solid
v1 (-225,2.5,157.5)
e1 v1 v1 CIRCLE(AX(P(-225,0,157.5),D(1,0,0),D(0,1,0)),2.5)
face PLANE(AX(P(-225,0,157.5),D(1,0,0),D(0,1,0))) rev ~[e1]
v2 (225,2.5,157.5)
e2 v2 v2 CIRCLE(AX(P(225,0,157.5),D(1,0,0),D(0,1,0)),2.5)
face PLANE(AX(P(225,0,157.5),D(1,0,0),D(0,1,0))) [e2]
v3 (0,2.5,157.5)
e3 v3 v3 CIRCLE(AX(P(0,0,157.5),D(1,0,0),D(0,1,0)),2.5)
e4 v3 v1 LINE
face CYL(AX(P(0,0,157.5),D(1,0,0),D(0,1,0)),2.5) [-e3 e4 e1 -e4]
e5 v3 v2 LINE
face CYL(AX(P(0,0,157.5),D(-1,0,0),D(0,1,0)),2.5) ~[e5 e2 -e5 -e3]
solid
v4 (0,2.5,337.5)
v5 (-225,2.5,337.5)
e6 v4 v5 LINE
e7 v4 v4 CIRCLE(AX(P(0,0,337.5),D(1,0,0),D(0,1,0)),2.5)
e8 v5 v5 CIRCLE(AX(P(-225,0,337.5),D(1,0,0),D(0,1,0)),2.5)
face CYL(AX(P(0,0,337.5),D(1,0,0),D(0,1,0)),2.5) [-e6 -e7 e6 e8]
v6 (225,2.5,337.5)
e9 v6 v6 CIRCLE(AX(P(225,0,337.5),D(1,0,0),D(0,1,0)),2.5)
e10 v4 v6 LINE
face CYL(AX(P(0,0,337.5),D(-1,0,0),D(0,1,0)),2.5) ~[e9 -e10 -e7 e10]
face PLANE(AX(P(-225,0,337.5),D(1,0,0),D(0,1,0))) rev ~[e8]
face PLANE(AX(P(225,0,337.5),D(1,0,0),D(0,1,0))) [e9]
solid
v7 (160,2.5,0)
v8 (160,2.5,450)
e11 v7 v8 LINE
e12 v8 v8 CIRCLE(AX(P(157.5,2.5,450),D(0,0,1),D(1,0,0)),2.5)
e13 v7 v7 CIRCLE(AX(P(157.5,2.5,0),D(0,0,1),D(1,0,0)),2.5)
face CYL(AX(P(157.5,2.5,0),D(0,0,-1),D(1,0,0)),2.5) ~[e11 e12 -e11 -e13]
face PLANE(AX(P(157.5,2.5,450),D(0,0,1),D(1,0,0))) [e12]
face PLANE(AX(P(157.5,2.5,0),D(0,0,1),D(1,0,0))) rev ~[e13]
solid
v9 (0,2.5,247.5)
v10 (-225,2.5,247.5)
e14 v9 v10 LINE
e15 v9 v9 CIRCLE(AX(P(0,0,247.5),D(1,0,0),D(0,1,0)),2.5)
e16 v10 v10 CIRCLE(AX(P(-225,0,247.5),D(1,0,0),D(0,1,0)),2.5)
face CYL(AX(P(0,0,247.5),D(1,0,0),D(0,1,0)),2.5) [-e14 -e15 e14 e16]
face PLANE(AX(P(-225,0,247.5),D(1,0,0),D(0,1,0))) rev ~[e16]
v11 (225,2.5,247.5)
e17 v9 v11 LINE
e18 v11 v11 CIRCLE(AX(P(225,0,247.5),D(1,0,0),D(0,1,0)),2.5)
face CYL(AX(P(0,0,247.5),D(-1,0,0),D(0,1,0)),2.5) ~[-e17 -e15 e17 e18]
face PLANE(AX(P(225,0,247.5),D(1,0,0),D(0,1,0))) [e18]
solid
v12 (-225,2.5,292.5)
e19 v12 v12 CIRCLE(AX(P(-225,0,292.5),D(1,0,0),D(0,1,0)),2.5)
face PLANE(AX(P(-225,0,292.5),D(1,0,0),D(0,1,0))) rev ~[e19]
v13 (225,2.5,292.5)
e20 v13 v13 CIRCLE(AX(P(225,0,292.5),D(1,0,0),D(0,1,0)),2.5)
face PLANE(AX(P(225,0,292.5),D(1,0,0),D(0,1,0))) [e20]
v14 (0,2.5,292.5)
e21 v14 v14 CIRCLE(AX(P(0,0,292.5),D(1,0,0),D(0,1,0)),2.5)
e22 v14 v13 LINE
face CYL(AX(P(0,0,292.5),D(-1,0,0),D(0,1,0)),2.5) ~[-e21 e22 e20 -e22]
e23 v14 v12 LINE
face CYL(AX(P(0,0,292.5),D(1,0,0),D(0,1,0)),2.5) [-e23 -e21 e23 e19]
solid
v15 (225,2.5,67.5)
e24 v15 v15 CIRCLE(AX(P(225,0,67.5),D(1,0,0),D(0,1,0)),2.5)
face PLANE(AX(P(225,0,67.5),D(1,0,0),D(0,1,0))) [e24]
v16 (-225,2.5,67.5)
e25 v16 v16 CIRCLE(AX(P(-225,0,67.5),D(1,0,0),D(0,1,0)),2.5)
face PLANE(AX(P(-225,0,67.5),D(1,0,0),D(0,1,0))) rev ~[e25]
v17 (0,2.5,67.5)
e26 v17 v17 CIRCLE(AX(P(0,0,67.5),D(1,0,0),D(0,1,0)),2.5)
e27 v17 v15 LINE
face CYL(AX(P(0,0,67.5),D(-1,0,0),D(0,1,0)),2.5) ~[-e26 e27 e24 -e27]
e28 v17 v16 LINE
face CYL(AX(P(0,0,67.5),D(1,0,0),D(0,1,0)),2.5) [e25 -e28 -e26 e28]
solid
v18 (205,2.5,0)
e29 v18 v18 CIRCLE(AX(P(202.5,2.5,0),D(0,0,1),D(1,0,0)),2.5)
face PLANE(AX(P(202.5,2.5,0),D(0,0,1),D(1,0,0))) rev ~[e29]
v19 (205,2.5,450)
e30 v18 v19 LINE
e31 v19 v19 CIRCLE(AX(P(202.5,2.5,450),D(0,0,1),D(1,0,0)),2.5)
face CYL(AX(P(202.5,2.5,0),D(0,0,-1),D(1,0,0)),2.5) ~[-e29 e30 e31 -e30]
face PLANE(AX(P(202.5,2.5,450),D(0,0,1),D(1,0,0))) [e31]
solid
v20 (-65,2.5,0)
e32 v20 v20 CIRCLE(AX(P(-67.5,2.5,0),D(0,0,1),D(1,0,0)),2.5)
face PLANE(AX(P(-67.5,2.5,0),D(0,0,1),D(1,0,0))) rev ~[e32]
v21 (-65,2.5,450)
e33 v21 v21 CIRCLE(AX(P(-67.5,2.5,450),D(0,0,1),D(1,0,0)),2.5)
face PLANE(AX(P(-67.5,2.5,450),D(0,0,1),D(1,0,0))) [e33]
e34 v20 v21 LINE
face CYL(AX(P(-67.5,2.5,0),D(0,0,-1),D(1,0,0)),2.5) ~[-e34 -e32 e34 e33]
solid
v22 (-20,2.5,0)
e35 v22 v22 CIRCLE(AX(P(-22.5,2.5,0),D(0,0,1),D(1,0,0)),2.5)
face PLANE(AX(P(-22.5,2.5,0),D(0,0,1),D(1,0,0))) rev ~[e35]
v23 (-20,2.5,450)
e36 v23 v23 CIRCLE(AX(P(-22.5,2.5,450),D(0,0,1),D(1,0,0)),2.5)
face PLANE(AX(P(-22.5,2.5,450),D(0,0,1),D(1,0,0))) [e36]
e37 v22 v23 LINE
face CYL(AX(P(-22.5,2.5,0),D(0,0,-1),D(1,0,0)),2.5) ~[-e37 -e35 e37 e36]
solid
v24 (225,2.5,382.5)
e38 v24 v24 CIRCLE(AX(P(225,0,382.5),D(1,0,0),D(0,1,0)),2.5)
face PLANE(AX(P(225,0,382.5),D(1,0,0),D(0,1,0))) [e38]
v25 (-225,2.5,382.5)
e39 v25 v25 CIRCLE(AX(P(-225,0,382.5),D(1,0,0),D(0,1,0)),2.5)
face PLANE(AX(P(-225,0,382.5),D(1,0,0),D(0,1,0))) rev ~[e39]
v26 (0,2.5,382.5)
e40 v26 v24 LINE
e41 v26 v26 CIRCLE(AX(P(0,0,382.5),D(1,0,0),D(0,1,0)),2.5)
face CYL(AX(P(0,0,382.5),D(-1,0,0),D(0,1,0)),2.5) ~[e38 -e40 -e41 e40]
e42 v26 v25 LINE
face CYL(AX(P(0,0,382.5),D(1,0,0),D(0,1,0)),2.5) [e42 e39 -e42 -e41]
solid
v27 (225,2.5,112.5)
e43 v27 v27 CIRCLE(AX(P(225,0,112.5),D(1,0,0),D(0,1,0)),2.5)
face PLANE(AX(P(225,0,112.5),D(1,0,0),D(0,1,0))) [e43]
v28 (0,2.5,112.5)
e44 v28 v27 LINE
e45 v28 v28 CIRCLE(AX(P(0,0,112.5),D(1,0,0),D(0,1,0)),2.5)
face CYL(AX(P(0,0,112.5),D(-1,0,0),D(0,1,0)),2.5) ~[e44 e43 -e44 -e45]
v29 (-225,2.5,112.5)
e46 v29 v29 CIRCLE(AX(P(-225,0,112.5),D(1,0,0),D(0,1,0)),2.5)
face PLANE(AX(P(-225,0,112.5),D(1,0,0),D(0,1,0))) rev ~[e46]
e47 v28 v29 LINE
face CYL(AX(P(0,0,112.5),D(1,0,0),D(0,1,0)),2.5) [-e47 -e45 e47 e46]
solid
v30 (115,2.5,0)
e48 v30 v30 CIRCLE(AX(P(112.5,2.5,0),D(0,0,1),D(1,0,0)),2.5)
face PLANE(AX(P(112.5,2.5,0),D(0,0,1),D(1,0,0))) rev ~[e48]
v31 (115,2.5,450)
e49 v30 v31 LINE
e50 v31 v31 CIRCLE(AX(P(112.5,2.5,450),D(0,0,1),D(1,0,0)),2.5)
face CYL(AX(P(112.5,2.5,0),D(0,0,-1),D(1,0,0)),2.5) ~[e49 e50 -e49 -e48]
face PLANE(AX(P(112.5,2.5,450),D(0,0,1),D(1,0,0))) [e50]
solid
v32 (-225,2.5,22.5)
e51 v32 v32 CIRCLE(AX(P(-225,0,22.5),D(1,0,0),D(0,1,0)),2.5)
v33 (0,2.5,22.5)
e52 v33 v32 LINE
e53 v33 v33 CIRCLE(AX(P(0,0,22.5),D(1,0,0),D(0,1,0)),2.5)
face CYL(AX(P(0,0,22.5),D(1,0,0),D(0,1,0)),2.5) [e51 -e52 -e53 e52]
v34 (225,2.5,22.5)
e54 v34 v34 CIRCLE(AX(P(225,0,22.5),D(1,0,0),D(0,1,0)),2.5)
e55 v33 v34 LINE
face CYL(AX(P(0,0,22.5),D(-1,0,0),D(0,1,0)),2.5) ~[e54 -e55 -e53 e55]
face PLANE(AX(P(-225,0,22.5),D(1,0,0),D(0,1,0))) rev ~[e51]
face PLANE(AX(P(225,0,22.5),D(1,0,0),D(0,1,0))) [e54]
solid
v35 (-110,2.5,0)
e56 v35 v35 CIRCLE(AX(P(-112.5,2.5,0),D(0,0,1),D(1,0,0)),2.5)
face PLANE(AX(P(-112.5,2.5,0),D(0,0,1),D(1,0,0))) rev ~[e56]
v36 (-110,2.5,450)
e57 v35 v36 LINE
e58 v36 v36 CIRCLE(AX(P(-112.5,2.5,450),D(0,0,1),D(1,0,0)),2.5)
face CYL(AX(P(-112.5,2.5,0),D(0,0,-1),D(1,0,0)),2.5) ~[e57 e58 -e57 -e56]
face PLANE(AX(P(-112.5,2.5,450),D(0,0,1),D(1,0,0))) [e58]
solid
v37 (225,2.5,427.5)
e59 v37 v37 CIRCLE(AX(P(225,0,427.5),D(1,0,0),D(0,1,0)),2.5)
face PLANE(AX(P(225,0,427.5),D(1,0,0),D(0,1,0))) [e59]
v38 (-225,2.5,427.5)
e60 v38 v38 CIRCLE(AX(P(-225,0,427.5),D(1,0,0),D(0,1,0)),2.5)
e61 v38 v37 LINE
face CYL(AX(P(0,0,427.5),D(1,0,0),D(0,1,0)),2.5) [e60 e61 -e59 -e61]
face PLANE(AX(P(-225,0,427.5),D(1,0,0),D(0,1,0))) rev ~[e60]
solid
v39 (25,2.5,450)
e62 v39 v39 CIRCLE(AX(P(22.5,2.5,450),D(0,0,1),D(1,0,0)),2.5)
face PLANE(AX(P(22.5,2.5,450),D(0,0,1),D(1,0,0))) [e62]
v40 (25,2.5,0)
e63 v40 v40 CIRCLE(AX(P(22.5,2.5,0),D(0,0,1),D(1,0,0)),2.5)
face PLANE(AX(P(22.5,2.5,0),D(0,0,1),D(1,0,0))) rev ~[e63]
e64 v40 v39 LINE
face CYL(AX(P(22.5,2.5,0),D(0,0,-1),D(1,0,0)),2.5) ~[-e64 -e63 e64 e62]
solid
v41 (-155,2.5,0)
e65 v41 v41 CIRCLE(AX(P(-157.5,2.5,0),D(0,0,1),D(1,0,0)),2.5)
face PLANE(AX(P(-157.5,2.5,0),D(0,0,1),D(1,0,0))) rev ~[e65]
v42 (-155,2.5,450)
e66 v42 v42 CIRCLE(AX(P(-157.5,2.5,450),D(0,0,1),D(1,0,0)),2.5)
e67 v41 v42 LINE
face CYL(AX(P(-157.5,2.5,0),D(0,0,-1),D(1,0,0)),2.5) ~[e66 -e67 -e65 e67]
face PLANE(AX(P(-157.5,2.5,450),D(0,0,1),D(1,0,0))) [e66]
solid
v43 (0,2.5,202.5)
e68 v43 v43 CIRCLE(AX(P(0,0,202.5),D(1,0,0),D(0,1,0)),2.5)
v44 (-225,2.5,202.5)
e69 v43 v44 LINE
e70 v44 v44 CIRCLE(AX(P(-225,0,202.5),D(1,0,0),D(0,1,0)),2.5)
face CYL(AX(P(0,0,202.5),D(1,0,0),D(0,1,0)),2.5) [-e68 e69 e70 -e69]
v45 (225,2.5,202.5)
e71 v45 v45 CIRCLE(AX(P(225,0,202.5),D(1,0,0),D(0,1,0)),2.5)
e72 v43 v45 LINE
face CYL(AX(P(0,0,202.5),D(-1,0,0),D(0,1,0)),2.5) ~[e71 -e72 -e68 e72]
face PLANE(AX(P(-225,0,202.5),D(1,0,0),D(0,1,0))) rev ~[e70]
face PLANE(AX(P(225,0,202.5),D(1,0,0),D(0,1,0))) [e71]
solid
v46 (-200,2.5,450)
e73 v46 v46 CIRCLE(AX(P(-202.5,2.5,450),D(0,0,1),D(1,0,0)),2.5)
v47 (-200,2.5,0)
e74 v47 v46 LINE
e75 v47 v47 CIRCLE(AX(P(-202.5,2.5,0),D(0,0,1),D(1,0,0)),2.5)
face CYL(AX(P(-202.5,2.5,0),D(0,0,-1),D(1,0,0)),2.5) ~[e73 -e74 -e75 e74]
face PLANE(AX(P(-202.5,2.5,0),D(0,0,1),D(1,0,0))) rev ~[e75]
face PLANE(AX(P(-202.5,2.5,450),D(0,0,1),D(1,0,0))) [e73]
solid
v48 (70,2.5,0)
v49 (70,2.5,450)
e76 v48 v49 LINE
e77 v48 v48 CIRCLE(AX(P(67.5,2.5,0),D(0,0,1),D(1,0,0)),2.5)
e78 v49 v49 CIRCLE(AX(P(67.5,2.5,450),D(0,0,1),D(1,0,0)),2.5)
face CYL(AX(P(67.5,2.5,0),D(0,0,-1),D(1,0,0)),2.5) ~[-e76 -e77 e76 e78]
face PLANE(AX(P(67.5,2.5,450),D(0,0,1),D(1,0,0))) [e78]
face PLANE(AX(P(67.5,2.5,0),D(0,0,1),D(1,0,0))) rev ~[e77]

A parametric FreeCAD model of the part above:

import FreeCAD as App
import Part
import Sketcher

V = App.Vector

doc = App.newDocument("Part")
body = doc.addObject("PartDesign::Body", "Body")
body.AllowCompound = True

sketch1 = body.newObject("Sketcher::SketchObject", "Sketch")
sketch1.AttachmentSupport = (doc.getObject("YZ_Plane"), [""])
sketch1.MapMode = "FlatFace"
sketch1.addGeometry([
    Part.Circle(V(0, 22.5, 0), V(0, 0, 1), 2.5),
    Part.Circle(V(0, 67.5, 0), V(0, 0, 1), 2.5),
    Part.Circle(V(0, 112.5, 0), V(0, 0, 1), 2.5),
    Part.Circle(V(0, 157.5, 0), V(0, 0, 1), 2.5),
    Part.Circle(V(0, 202.5, 0), V(0, 0, 1), 2.5),
    Part.Circle(V(0, 247.5, 0), V(0, 0, 1), 2.5),
    Part.Circle(V(0, 292.5, 0), V(0, 0, 1), 2.5),
    Part.Circle(V(0, 337.5, 0), V(0, 0, 1), 2.5),
    Part.Circle(V(0, 382.5, 0), V(0, 0, 1), 2.5),
    Part.Circle(V(0, 427.5, 0), V(0, 0, 1), 2.5),
], False)
sketch1.addConstraint([
    Sketcher.Constraint("Equal", 0, 1),
    Sketcher.Constraint("Equal", 1, 2),
    Sketcher.Constraint("Equal", 2, 3),
    Sketcher.Constraint("Equal", 3, 4),
    Sketcher.Constraint("Equal", 4, 5),
    Sketcher.Constraint("Equal", 5, 6),
    Sketcher.Constraint("Equal", 6, 7),
    Sketcher.Constraint("Equal", 7, 8),
    Sketcher.Constraint("Equal", 8, 9),
    Sketcher.Constraint("PointOnObject", 0, 3, -2),
    Sketcher.Constraint("PointOnObject", 1, 3, -2),
    Sketcher.Constraint("PointOnObject", 2, 3, -2),
    Sketcher.Constraint("PointOnObject", 3, 3, -2),
    Sketcher.Constraint("PointOnObject", 4, 3, -2),
    Sketcher.Constraint("PointOnObject", 5, 3, -2),
    Sketcher.Constraint("PointOnObject", 6, 3, -2),
    Sketcher.Constraint("PointOnObject", 7, 3, -2),
    Sketcher.Constraint("PointOnObject", 8, 3, -2),
    Sketcher.Constraint("PointOnObject", 9, 3, -2),
    Sketcher.Constraint("Diameter", 0, 5.0),
    Sketcher.Constraint("DistanceY", 0, 3, 1, 3, 45.0),
    Sketcher.Constraint("DistanceY", 1, 3, 2, 3, 45.0),
    Sketcher.Constraint("DistanceY", 2, 3, 3, 3, 45.0),
    Sketcher.Constraint("DistanceY", 3, 3, 4, 3, 45.0),
    Sketcher.Constraint("DistanceY", 4, 3, 5, 3, 45.0),
    Sketcher.Constraint("DistanceY", 5, 3, 6, 3, 45.0),
    Sketcher.Constraint("DistanceY", 6, 3, 7, 3, 45.0),
    Sketcher.Constraint("DistanceY", 7, 3, 8, 3, 45.0),
    Sketcher.Constraint("DistanceY", 8, 3, 9, 3, 45.0),
    Sketcher.Constraint("DistanceY", -1, 1, 0, 3, 22.5),
])
pad1 = body.newObject("PartDesign::Pad", "Pad")
pad1.Profile = sketch1
pad1.Length = 450
pad1.Midplane = True
body2 = doc.addObject("PartDesign::Body", "Body001")
body2.AllowCompound = True

sketch2 = body2.newObject("Sketcher::SketchObject", "Sketch001")
sketch2.AttachmentSupport = (doc.getObject("XY_Plane001"), [""])
sketch2.MapMode = "FlatFace"
sketch2.addGeometry([
    Part.Circle(V(-202.5, 2.5, 0), V(0, 0, 1), 2.5),
    Part.Circle(V(-157.5, 2.5, 0), V(0, 0, 1), 2.5),
    Part.Circle(V(-112.5, 2.5, 0), V(0, 0, 1), 2.5),
    Part.Circle(V(-67.5, 2.5, 0), V(0, 0, 1), 2.5),
    Part.Circle(V(-22.5, 2.5, 0), V(0, 0, 1), 2.5),
    Part.Circle(V(22.5, 2.5, 0), V(0, 0, 1), 2.5),
    Part.Circle(V(67.5, 2.5, 0), V(0, 0, 1), 2.5),
    Part.Circle(V(112.5, 2.5, 0), V(0, 0, 1), 2.5),
    Part.Circle(V(157.5, 2.5, 0), V(0, 0, 1), 2.5),
    Part.Circle(V(202.5, 2.5, 0), V(0, 0, 1), 2.5),
], False)
sketch2.addConstraint([
    Sketcher.Constraint("Equal", 0, 1),
    Sketcher.Constraint("Equal", 1, 2),
    Sketcher.Constraint("Equal", 2, 3),
    Sketcher.Constraint("Equal", 3, 4),
    Sketcher.Constraint("Equal", 4, 5),
    Sketcher.Constraint("Equal", 5, 6),
    Sketcher.Constraint("Equal", 6, 7),
    Sketcher.Constraint("Equal", 7, 8),
    Sketcher.Constraint("Equal", 8, 9),
    Sketcher.Constraint("Symmetric", 4, 3, 5, 3, -2),
    Sketcher.Constraint("Symmetric", 3, 3, 6, 3, -2),
    Sketcher.Constraint("Symmetric", 2, 3, 7, 3, -2),
    Sketcher.Constraint("Symmetric", 1, 3, 8, 3, -2),
    Sketcher.Constraint("Symmetric", 0, 3, 9, 3, -2),
    Sketcher.Constraint("Horizontal", 0, 3, 1, 3),
    Sketcher.Constraint("Horizontal", 1, 3, 2, 3),
    Sketcher.Constraint("Horizontal", 2, 3, 3, 3),
    Sketcher.Constraint("Horizontal", 3, 3, 4, 3),
    Sketcher.Constraint("Diameter", 0, 5.0),
    Sketcher.Constraint("DistanceX", 0, 3, 1, 3, 45.0),
    Sketcher.Constraint("DistanceX", 1, 3, 2, 3, 45.0),
    Sketcher.Constraint("DistanceX", 2, 3, 3, 3, 45.0),
    Sketcher.Constraint("DistanceX", 3, 3, 4, 3, 45.0),
    Sketcher.Constraint("DistanceX", 4, 3, 5, 3, 45.0),
    Sketcher.Constraint("DistanceY", -1, 1, 0, 3, 2.5),
])
pad2 = body2.newObject("PartDesign::Pad", "Pad001")
pad2.Profile = sketch2
pad2.Length = 450

doc.recompute()
